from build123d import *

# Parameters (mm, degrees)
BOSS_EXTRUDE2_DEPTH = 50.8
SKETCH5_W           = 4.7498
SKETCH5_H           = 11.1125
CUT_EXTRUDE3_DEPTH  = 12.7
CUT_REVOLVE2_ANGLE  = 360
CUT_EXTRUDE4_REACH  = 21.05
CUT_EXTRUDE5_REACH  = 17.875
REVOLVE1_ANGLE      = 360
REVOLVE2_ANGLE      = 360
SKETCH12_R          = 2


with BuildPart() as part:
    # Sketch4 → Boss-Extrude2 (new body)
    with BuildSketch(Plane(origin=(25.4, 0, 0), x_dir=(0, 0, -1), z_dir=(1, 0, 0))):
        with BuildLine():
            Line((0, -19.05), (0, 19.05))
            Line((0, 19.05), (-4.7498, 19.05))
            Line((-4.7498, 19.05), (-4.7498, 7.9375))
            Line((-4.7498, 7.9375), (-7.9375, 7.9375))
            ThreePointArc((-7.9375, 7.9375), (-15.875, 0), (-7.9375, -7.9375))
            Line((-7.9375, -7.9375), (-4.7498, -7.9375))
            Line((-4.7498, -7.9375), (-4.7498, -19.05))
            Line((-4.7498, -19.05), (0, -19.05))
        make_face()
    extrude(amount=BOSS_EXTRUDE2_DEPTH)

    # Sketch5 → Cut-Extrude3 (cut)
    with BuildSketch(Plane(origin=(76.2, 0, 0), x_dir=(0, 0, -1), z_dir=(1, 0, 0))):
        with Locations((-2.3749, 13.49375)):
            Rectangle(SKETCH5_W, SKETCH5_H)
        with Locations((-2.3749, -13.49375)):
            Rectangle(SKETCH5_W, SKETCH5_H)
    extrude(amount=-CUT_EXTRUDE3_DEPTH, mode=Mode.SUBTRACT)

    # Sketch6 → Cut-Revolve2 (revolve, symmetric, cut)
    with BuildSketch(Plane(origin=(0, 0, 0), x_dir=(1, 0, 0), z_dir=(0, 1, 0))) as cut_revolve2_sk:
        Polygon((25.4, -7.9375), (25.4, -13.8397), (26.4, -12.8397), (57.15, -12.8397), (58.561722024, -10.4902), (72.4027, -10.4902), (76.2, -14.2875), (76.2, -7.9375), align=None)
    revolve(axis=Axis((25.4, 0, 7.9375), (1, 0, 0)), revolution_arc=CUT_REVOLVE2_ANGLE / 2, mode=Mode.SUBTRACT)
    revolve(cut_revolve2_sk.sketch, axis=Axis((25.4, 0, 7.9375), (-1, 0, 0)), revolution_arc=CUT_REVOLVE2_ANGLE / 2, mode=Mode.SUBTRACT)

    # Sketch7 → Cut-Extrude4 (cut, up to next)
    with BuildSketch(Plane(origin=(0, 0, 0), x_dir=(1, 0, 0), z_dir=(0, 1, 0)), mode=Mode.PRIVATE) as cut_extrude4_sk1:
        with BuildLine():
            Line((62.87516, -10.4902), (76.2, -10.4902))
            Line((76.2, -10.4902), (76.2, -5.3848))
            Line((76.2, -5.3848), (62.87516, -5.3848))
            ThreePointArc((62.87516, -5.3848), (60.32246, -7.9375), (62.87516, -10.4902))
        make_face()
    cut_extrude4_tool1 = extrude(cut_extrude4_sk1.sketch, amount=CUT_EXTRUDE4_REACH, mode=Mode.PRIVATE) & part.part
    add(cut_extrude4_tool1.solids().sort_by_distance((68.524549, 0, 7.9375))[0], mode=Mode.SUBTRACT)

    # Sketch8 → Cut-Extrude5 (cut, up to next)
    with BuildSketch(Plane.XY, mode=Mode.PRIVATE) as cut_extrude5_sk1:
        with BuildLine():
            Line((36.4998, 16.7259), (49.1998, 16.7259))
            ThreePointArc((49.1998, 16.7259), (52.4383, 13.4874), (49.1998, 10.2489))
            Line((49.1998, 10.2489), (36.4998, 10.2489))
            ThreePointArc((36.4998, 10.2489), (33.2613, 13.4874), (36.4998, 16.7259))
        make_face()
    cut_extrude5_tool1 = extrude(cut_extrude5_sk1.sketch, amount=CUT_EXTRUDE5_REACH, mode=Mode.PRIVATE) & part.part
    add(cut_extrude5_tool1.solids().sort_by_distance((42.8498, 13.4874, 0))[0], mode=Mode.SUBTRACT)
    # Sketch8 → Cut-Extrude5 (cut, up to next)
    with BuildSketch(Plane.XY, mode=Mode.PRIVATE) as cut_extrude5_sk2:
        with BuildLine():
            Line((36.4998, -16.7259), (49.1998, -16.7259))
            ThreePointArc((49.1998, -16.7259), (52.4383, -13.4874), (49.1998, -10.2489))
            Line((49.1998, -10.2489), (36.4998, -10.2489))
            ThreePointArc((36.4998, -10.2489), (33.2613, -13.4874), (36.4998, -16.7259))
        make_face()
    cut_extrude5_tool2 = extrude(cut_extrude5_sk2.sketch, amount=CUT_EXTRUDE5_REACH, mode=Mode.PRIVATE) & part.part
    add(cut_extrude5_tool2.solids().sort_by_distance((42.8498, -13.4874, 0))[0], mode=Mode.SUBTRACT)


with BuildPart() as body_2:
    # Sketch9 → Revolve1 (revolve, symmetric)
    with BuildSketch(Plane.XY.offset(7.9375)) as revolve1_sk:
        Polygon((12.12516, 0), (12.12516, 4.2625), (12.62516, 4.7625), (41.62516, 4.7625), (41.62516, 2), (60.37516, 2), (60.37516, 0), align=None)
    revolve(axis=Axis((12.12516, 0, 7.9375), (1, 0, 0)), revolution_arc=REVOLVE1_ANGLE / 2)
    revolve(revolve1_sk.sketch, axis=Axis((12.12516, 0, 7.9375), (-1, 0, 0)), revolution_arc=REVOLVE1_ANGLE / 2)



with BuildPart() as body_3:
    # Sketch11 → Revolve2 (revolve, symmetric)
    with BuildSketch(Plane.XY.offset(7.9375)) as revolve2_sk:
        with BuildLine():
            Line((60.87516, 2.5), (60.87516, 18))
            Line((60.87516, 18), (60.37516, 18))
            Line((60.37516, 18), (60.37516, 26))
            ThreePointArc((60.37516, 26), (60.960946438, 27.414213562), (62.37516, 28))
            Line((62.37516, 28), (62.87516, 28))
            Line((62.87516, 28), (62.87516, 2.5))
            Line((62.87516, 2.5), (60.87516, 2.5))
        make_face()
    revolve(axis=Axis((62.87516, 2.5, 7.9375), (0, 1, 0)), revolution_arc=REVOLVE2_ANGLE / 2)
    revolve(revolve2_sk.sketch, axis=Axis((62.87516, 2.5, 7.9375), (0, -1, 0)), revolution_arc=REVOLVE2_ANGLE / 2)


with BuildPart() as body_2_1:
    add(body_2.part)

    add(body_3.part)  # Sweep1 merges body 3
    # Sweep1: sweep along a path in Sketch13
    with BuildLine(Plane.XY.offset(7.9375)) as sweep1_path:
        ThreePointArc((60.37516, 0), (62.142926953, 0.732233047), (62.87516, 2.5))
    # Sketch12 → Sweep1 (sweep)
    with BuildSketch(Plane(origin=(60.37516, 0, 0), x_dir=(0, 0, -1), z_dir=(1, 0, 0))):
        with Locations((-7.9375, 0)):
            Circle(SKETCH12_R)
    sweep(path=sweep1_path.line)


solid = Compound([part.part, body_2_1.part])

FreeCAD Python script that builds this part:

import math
import FreeCAD as App
import Part
import Sketcher

V = App.Vector
Q = App.Units.Quantity


def add_polygon(sketch, points):
    """Adds a closed chain of lines whose ends are joined by coincident constraints."""
    first, n = sketch.GeometryCount, len(points)
    for a, b in zip(points, points[1:] + points[:1]):
        sketch.addGeometry(Part.LineSegment(App.Vector(*a, 0), App.Vector(*b, 0)), False)
    for i in range(n):
        sketch.addConstraint(Sketcher.Constraint("Coincident", first + i, 2, first + (i + 1) % n, 1))

doc = App.newDocument("Part")
body = doc.addObject("PartDesign::Body", "Body")

sketch1 = doc.addObject("Sketcher::SketchObject", "Sketch")
body.addObject(sketch1)
sketch1.AttachmentSupport = (doc.YZ_Plane, [""])
sketch1.MapMode = "FlatFace"
sketch1.AttachmentOffset = App.Placement(V(0, 0, 1 * 25.4), App.Rotation())
sketch1.addGeometry([
    Part.LineSegment(V(-19.1, 0, 0), V(19.1, 0, 0)),
    Part.LineSegment(V(19.1, 0, 0), V(19.1, 4.7, 0)),
    Part.LineSegment(V(19.1, 4.7, 0), V(7.9, 4.7, 0)),
    Part.LineSegment(V(7.9, 4.7, 0), V(7.9, 7.9, 0)),
    Part.ArcOfCircle(Part.Circle(V(0, 7.9, 0), V(0, 0, 1), 7.9), math.radians(0), math.radians(180)),
    Part.LineSegment(V(-7.9, 7.9, 0), V(-7.9, 4.7, 0)),
    Part.LineSegment(V(-7.9, 4.7, 0), V(-19.1, 4.7, 0)),
    Part.LineSegment(V(-19.1, 4.7, 0), V(-19.1, 0, 0)),
], False)
sketch1.addConstraint([
    Sketcher.Constraint("Coincident", 0, 2, 1, 1),
    Sketcher.Constraint("Coincident", 1, 2, 2, 1),
    Sketcher.Constraint("Coincident", 2, 2, 3, 1),
    Sketcher.Constraint("Tangent", 3, 2, 4, 1),
    Sketcher.Constraint("Tangent", 4, 2, 5, 1),
    Sketcher.Constraint("Coincident", 5, 2, 6, 1),
    Sketcher.Constraint("Coincident", 6, 2, 7, 1),
    Sketcher.Constraint("Coincident", 7, 2, 0, 1),
    Sketcher.Constraint("Horizontal", 0),
    Sketcher.Constraint("Vertical", 1),
    Sketcher.Constraint("Horizontal", 2),
    Sketcher.Constraint("Vertical", 3),
    Sketcher.Constraint("Vertical", 5),
    Sketcher.Constraint("Horizontal", 6),
    Sketcher.Constraint("Vertical", 7),
    Sketcher.Constraint("Symmetric", 0, 2, 7, 2, -1, 1),
    Sketcher.Constraint("Symmetric", 2, 2, 5, 2, -2),
    Sketcher.Constraint("DistanceX", 0, 1, 0, 2, Q("1.5 in")),
    Sketcher.Constraint("Radius", 4, Q("0.3125 in")),
    Sketcher.Constraint("DistanceY", 1, 1, 1, 2, Q("0.187 in")),
    Sketcher.Constraint("DistanceY", 3, 1, 3, 2, Q("0.1255 in")),
])
pad1 = doc.addObject("PartDesign::Pad", "Pad")
body.addObject(pad1)
pad1.Profile = sketch1
pad1.Length = Q("2 in")

sketch2 = doc.addObject("Sketcher::SketchObject", "Sketch001")
body.addObject(sketch2)
sketch2.AttachmentSupport = (doc.YZ_Plane, [""])
sketch2.MapMode = "FlatFace"
sketch2.AttachmentOffset = App.Placement(V(0, 0, 3 * 25.4), App.Rotation())
add_polygon(sketch2, [(19.1, 4.7), (7.9, 4.7), (7.9, 0), (19.1, 0)])
add_polygon(sketch2, [(-7.9, 4.7), (-19.1, 4.7), (-19.1, 0), (-7.9, 0)])
sketch2.addConstraint([
    Sketcher.Constraint("Horizontal", 0),
    Sketcher.Constraint("Vertical", 1),
    Sketcher.Constraint("Horizontal", 2),
    Sketcher.Constraint("Vertical", 3),
    Sketcher.Constraint("Horizontal", 4),
    Sketcher.Constraint("Vertical", 5),
    Sketcher.Constraint("Horizontal", 6),
    Sketcher.Constraint("Vertical", 7),
    Sketcher.Constraint("Symmetric", 2, 2, 5, 2, -1, 1),
    Sketcher.Constraint("Symmetric", 1, 2, 6, 2, -2),
    Sketcher.Constraint("Horizontal", 3, 2, 4, 2),
    Sketcher.Constraint("DistanceX", 4, 2, 3, 2, Q("1.5 in")),
    Sketcher.Constraint("DistanceX", 0, 2, 0, 1, Q("0.4375 in")),
    Sketcher.Constraint("DistanceY", 1, 2, 1, 1, Q("0.187 in")),
])
pocket1 = doc.addObject("PartDesign::Pocket", "Pocket")
body.addObject(pocket1)
pocket1.Profile = sketch2
pocket1.Length = Q("0.5 in")

sketch3 = doc.addObject("Sketcher::SketchObject", "Sketch002")
body.addObject(sketch3)
sketch3.AttachmentSupport = (doc.XZ_Plane, [""])
sketch3.MapMode = "FlatFace"
add_polygon(sketch3, [(25.4, 7.9), (25.4, 13.8), (26.4, 12.8), (57.1, 12.8), (58.6, 10.5), (72.4, 10.5), (76.2, 14.3), (76.2, 7.9)])
sketch3.addGeometry(Part.LineSegment(V(25.4, 7.9, 0), V(76.2, 7.9, 0)), True)
sketch3.addConstraint([
    Sketcher.Constraint("Vertical", 0),
    Sketcher.Constraint("Horizontal", 2),
    Sketcher.Constraint("Horizontal", 4),
    Sketcher.Constraint("Vertical", 6),
    Sketcher.Constraint("Horizontal", 7),
    Sketcher.Constraint("Horizontal", 8),
    Sketcher.Constraint("Coincident", 8, 1, 7, 2),
    Sketcher.Constraint("Perpendicular", 1, 5),
    Sketcher.Constraint("Vertical", 5, 2, 8, 2),
    Sketcher.Constraint("DistanceX", 7, 2, 7, 1, Q("2 in")),
    Sketcher.Constraint("DistanceX", -1, 1, 0, 2, Q("1 in")),
    Sketcher.Constraint("Angle", 1, Q("-45 deg")),
    Sketcher.Constraint("Angle", 3, Q("-59 deg")),
    Sketcher.Constraint("DistanceY", 6, 2, 6, 1, Q("0.25 in")),
    Sketcher.Constraint("DistanceX", -1, 1, 2, 2, Q("2.25 in")),
    Sketcher.Constraint("DistanceY", -1, 1, 3, 2, Q("0.413 in")),
    Sketcher.Constraint("DistanceY", -1, 1, 5, 2, Q("0.5625 in")),
    Sketcher.Constraint("DistanceY", 2, 2, 5, 2, Q("0.057 in")),
    Sketcher.Constraint("DistanceX", 2, 1, 2, 2, Q("30.75 mm")),
])
groove = doc.addObject("PartDesign::Groove", "Groove")
body.addObject(groove)
groove.Profile = sketch3
groove.ReferenceAxis = (sketch3, ["Axis0"])
groove.Angle = 180

sketch4 = doc.addObject("Sketcher::SketchObject", "Sketch003")
body.addObject(sketch4)
sketch4.AttachmentSupport = (doc.XZ_Plane, [""])
sketch4.MapMode = "FlatFace"
add_polygon(sketch4, [(25.4, 7.9), (25.4, 13.8), (26.4, 12.8), (57.1, 12.8), (58.6, 10.5), (72.4, 10.5), (76.2, 14.3), (76.2, 7.9)])
sketch4.addGeometry(Part.LineSegment(V(76.2, 7.9, 0), V(25.4, 7.9, 0)), True)
sketch4.addConstraint([
    Sketcher.Constraint("Vertical", 0),
    Sketcher.Constraint("Horizontal", 2),
    Sketcher.Constraint("Horizontal", 4),
    Sketcher.Constraint("Vertical", 6),
    Sketcher.Constraint("Horizontal", 7),
    Sketcher.Constraint("Horizontal", 8),
    Sketcher.Constraint("Coincident", 8, 1, 6, 2),
    Sketcher.Constraint("Perpendicular", 1, 5),
    Sketcher.Constraint("Vertical", 0, 2, 8, 2),
    Sketcher.Constraint("DistanceX", 7, 2, 7, 1, Q("2 in")),
    Sketcher.Constraint("DistanceX", -1, 1, 0, 2, Q("1 in")),
    Sketcher.Constraint("Angle", 1, Q("-45 deg")),
    Sketcher.Constraint("Angle", 3, Q("-59 deg")),
    Sketcher.Constraint("DistanceY", 6, 2, 6, 1, Q("0.25 in")),
    Sketcher.Constraint("DistanceX", -1, 1, 2, 2, Q("2.25 in")),
    Sketcher.Constraint("DistanceY", -1, 1, 3, 2, Q("0.413 in")),
    Sketcher.Constraint("DistanceY", -1, 1, 5, 2, Q("0.5625 in")),
    Sketcher.Constraint("DistanceY", 2, 2, 5, 2, Q("0.057 in")),
    Sketcher.Constraint("DistanceX", 2, 1, 2, 2, Q("30.75 mm")),
])
groove2 = doc.addObject("PartDesign::Groove", "Groove001")
body.addObject(groove2)
groove2.Profile = sketch4
groove2.ReferenceAxis = (sketch4, ["Axis0"])
groove2.Angle = 180

sketch5 = doc.addObject("Sketcher::SketchObject", "Sketch004")
body.addObject(sketch5)
sketch5.AttachmentSupport = (doc.XZ_Plane, [""])
sketch5.MapMode = "FlatFace"
sketch5.addGeometry([
    Part.LineSegment(V(62.9, 10.5, 0), V(76.2, 10.5, 0)),
    Part.LineSegment(V(76.2, 10.5, 0), V(76.2, 5.4, 0)),
    Part.LineSegment(V(76.2, 5.4, 0), V(62.9, 5.4, 0)),
    Part.ArcOfCircle(Part.Circle(V(62.9, 7.9, 0), V(0, 0, 1), 2.6), math.radians(90), math.radians(270)),
], False)
sketch5.addConstraint([
    Sketcher.Constraint("Coincident", 0, 2, 1, 1),
    Sketcher.Constraint("Coincident", 1, 2, 2, 1),
    Sketcher.Constraint("Tangent", 2, 2, 3, 2),
    Sketcher.Constraint("Tangent", 3, 1, 0, 1),
    Sketcher.Constraint("Horizontal", 0),
    Sketcher.Constraint("Vertical", 1),
    Sketcher.Constraint("Horizontal", 2),
    Sketcher.Constraint("DistanceX", -1, 1, 0, 2, Q("3 in")),
    Sketcher.Constraint("Radius", 3, Q("0.1005 in")),
    Sketcher.Constraint("DistanceX", 0, 1, 0, 2, Q("0.5246 in")),
    Sketcher.Constraint("DistanceY", -1, 1, 3, 3, Q("0.3125 in")),
])
pocket2 = doc.addObject("PartDesign::Pocket", "Pocket001")
body.addObject(pocket2)
pocket2.Profile = sketch5
pocket2.Length = Q("0.3125 in")

sketch6 = doc.addObject("Sketcher::SketchObject", "Sketch005")
body.addObject(sketch6)
sketch6.AttachmentSupport = (doc.XY_Plane, [""])
sketch6.MapMode = "FlatFace"
sketch6.addGeometry([
    Part.LineSegment(V(49.2, 16.7, 0), V(36.5, 16.7, 0)),
    Part.ArcOfCircle(Part.Circle(V(36.5, 13.5, 0), V(0, 0, 1), 3.2), math.radians(90), math.radians(270)),
    Part.LineSegment(V(36.5, 10.2, 0), V(49.2, 10.2, 0)),
    Part.ArcOfCircle(Part.Circle(V(49.2, 13.5, 0), V(0, 0, 1), 3.2), math.radians(-90), math.radians(90)),
], False)
sketch6.addConstraint([
    Sketcher.Constraint("Tangent", 0, 2, 1, 1),
    Sketcher.Constraint("Tangent", 1, 2, 2, 1),
    Sketcher.Constraint("Tangent", 2, 2, 3, 1),
    Sketcher.Constraint("Tangent", 3, 2, 0, 1),
    Sketcher.Constraint("Horizontal", 0),
    Sketcher.Constraint("Horizontal", 2),
    Sketcher.Constraint("DistanceX", 0, 2, 0, 1, Q("0.5 in")),
    Sketcher.Constraint("Radius", 1, Q("0.1275 in")),
    Sketcher.Constraint("DistanceX", -1, 1, 1, 3, Q("1.437 in")),
    Sketcher.Constraint("DistanceY", -1, 1, 1, 3, Q("0.531 in")),
])
pocket3 = doc.addObject("PartDesign::Pocket", "Pocket002")
body.addObject(pocket3)
pocket3.Profile = sketch6
pocket3.Type = "UpToFirst"
pocket3.Reversed = True

sketch7 = doc.addObject("Sketcher::SketchObject", "Sketch006")
body.addObject(sketch7)
sketch7.AttachmentSupport = (doc.XY_Plane, [""])
sketch7.MapMode = "FlatFace"
sketch7.addGeometry([
    Part.LineSegment(V(36.5, -16.7, 0), V(49.2, -16.7, 0)),
    Part.ArcOfCircle(Part.Circle(V(49.2, -13.5, 0), V(0, 0, 1), 3.2), math.radians(-90), math.radians(90)),
    Part.LineSegment(V(49.2, -10.2, 0), V(36.5, -10.2, 0)),
    Part.ArcOfCircle(Part.Circle(V(36.5, -13.5, 0), V(0, 0, 1), 3.2), math.radians(90), math.radians(270)),
], False)
sketch7.addConstraint([
    Sketcher.Constraint("Tangent", 0, 2, 1, 1),
    Sketcher.Constraint("Tangent", 1, 2, 2, 1),
    Sketcher.Constraint("Tangent", 2, 2, 3, 1),
    Sketcher.Constraint("Tangent", 3, 2, 0, 1),
    Sketcher.Constraint("Horizontal", 0),
    Sketcher.Constraint("Horizontal", 2),
    Sketcher.Constraint("DistanceX", 0, 1, 0, 2, Q("0.5 in")),
    Sketcher.Constraint("Radius", 1, Q("0.1275 in")),
    Sketcher.Constraint("DistanceX", -1, 1, 1, 3, Q("1.937 in")),
    Sketcher.Constraint("DistanceY", 1, 3, -1, 1, Q("0.531 in")),
])
pocket4 = doc.addObject("PartDesign::Pocket", "Pocket003")
body.addObject(pocket4)
pocket4.Profile = sketch7
pocket4.Type = "UpToFirst"
pocket4.Reversed = True
body2 = doc.addObject("PartDesign::Body", "Body001")

sketch8 = doc.addObject("Sketcher::SketchObject", "Sketch007")
body2.addObject(sketch8)
sketch8.AttachmentSupport = (doc.getObject("XY_Plane001"), [""])
sketch8.MapMode = "FlatFace"
sketch8.AttachmentOffset = App.Placement(V(0, 0, 0.3125 * 25.4), App.Rotation())
add_polygon(sketch8, [(12.1, 4.3), (12.1, 0), (60.4, 0), (60.4, 2), (41.6, 2), (41.6, 4.8), (12.6, 4.8)])
sketch8.addConstraint([
    Sketcher.Constraint("Vertical", 0),
    Sketcher.Constraint("Horizontal", 1),
    Sketcher.Constraint("Vertical", 2),
    Sketcher.Constraint("Horizontal", 3),
    Sketcher.Constraint("Vertical", 4),
    Sketcher.Constraint("Horizontal", 5),
    Sketcher.Constraint("PointOnObject", 0, 2, -1),
    Sketcher.Constraint("Angle", 6, Q("-135 deg")),
    Sketcher.Constraint("DistanceY", -1, 1, 4, 2, Q("0.1875 in")),
    Sketcher.Constraint("DistanceX", 1, 1, 1, 2, Q("48.25 mm")),
    Sketcher.Constraint("DistanceX", 3, 2, 3, 1, Q("18.75 mm")),
    Sketcher.Constraint("DistanceX", 5, 2, 5, 1, Q("29 mm")),
    Sketcher.Constraint("DistanceY", 2, 1, 2, 2, Q("2 mm")),
    Sketcher.Constraint("DistanceX", -1, 1, 0, 2, Q("12.12516 mm")),
])
revolution = doc.addObject("PartDesign::Revolution", "Revolution")
body2.addObject(revolution)
revolution.Profile = sketch8
revolution.ReferenceAxis = (sketch8, ["H_Axis"])
revolution.Angle = 180

sketch9 = doc.addObject("Sketcher::SketchObject", "Sketch008")
body2.addObject(sketch9)
sketch9.AttachmentSupport = (doc.getObject("XY_Plane001"), [""])
sketch9.MapMode = "FlatFace"
sketch9.AttachmentOffset = App.Placement(V(0, 0, 0.3125 * 25.4), App.Rotation())
add_polygon(sketch9, [(12.1, 4.3), (12.1, 0), (60.4, 0), (60.4, 2), (41.6, 2), (41.6, 4.8), (12.6, 4.8)])
sketch9.addConstraint([
    Sketcher.Constraint("Vertical", 0),
    Sketcher.Constraint("Horizontal", 1),
    Sketcher.Constraint("Vertical", 2),
    Sketcher.Constraint("Horizontal", 3),
    Sketcher.Constraint("Vertical", 4),
    Sketcher.Constraint("Horizontal", 5),
    Sketcher.Constraint("PointOnObject", 0, 2, -1),
    Sketcher.Constraint("Angle", 6, Q("-135 deg")),
    Sketcher.Constraint("DistanceY", -1, 1, 4, 2, Q("0.1875 in")),
    Sketcher.Constraint("DistanceX", 1, 1, 1, 2, Q("48.25 mm")),
    Sketcher.Constraint("DistanceX", 3, 2, 3, 1, Q("18.75 mm")),
    Sketcher.Constraint("DistanceX", 5, 2, 5, 1, Q("29 mm")),
    Sketcher.Constraint("DistanceY", 2, 1, 2, 2, Q("2 mm")),
    Sketcher.Constraint("DistanceX", -1, 1, 0, 2, Q("12.12516 mm")),
])
revolution2 = doc.addObject("PartDesign::Revolution", "Revolution001")
body2.addObject(revolution2)
revolution2.Profile = sketch9
revolution2.ReferenceAxis = (sketch9, ["H_Axis"])
revolution2.Angle = 180
revolution2.Reversed = True
body3 = doc.addObject("PartDesign::Body", "Body002")

sketch10 = doc.addObject("Sketcher::SketchObject", "Sketch009")
body3.addObject(sketch10)
sketch10.AttachmentSupport = (doc.getObject("XY_Plane002"), [""])
sketch10.MapMode = "FlatFace"
sketch10.AttachmentOffset = App.Placement(V(0, 0, 0.3125 * 25.4), App.Rotation())
sketch10.addGeometry([
    Part.LineSegment(V(60.9, 18, 0), V(60.9, 2.5, 0)),
    Part.LineSegment(V(60.9, 2.5, 0), V(62.9, 2.5, 0)),
    Part.LineSegment(V(62.9, 2.5, 0), V(62.9, 28, 0)),
    Part.LineSegment(V(62.9, 28, 0), V(62.4, 28, 0)),
    Part.ArcOfCircle(Part.Circle(V(62.4, 26, 0), V(0, 0, 1), 2), math.radians(90), math.radians(180)),
    Part.LineSegment(V(60.4, 26, 0), V(60.4, 18, 0)),
    Part.LineSegment(V(60.4, 18, 0), V(60.9, 18, 0)),
], False)
sketch10.addGeometry(Part.LineSegment(V(62.9, 2.5, 0), V(62.9, 28, 0)), True)
sketch10.addConstraint([
    Sketcher.Constraint("Coincident", 0, 2, 1, 1),
    Sketcher.Constraint("Coincident", 1, 2, 2, 1),
    Sketcher.Constraint("Coincident", 2, 2, 3, 1),
    Sketcher.Constraint("Tangent", 3, 2, 4, 1),
    Sketcher.Constraint("Tangent", 4, 2, 5, 1),
    Sketcher.Constraint("Coincident", 5, 2, 6, 1),
    Sketcher.Constraint("Coincident", 6, 2, 0, 1),
    Sketcher.Constraint("Vertical", 0),
    Sketcher.Constraint("Horizontal", 1),
    Sketcher.Constraint("Vertical", 2),
    Sketcher.Constraint("Horizontal", 3),
    Sketcher.Constraint("Vertical", 5),
    Sketcher.Constraint("Horizontal", 6),
    Sketcher.Constraint("Vertical", 7),
    Sketcher.Constraint("Coincident", 7, 1, 1, 2),
    Sketcher.Constraint("Horizontal", 3, 2, 7, 2),
    Sketcher.Constraint("Equal", 3, 6),
    Sketcher.Constraint("Radius", 4, Q("2 mm")),
    Sketcher.Constraint("DistanceX", 3, 2, 3, 1, Q("0.5 mm")),
    Sketcher.Constraint("DistanceY", 0, 2, 0, 1, Q("15.5 mm")),
    Sketcher.Constraint("DistanceY", 2, 1, 2, 2, Q("25.5 mm")),
    Sketcher.Constraint("DistanceX", -1, 1, 1, 2, Q("2.4754 in")),
    Sketcher.Constraint("DistanceY", -1, 1, 4, 3, Q("26 mm")),
])
revolution3 = doc.addObject("PartDesign::Revolution", "Revolution002")
body3.addObject(revolution3)
revolution3.Profile = sketch10
revolution3.ReferenceAxis = (sketch10, ["Axis0"])
revolution3.Angle = 180

sketch11 = doc.addObject("Sketcher::SketchObject", "Sketch010")
body3.addObject(sketch11)
sketch11.AttachmentSupport = (doc.getObject("XY_Plane002"), [""])
sketch11.MapMode = "FlatFace"
sketch11.AttachmentOffset = App.Placement(V(0, 0, 0.3125 * 25.4), App.Rotation())
sketch11.addGeometry([
    Part.LineSegment(V(60.9, 18, 0), V(60.9, 2.5, 0)),
    Part.LineSegment(V(60.9, 2.5, 0), V(62.9, 2.5, 0)),
    Part.LineSegment(V(62.9, 2.5, 0), V(62.9, 28, 0)),
    Part.LineSegment(V(62.9, 28, 0), V(62.4, 28, 0)),
    Part.ArcOfCircle(Part.Circle(V(62.4, 26, 0), V(0, 0, 1), 2), math.radians(90), math.radians(180)),
    Part.LineSegment(V(60.4, 26, 0), V(60.4, 18, 0)),
    Part.LineSegment(V(60.4, 18, 0), V(60.9, 18, 0)),
], False)
sketch11.addGeometry(Part.LineSegment(V(62.9, 28, 0), V(62.9, 2.5, 0)), True)
sketch11.addConstraint([
    Sketcher.Constraint("Coincident", 0, 2, 1, 1),
    Sketcher.Constraint("Coincident", 1, 2, 2, 1),
    Sketcher.Constraint("Coincident", 2, 2, 3, 1),
    Sketcher.Constraint("Tangent", 3, 2, 4, 1),
    Sketcher.Constraint("Tangent", 4, 2, 5, 1),
    Sketcher.Constraint("Coincident", 5, 2, 6, 1),
    Sketcher.Constraint("Coincident", 6, 2, 0, 1),
    Sketcher.Constraint("Vertical", 0),
    Sketcher.Constraint("Horizontal", 1),
    Sketcher.Constraint("Vertical", 2),
    Sketcher.Constraint("Horizontal", 3),
    Sketcher.Constraint("Vertical", 5),
    Sketcher.Constraint("Horizontal", 6),
    Sketcher.Constraint("Vertical", 7),
    Sketcher.Constraint("Coincident", 7, 1, 2, 2),
    Sketcher.Constraint("Horizontal", 0, 2, 7, 2),
    Sketcher.Constraint("Equal", 3, 6),
    Sketcher.Constraint("Radius", 4, Q("2 mm")),
    Sketcher.Constraint("DistanceX", 3, 2, 3, 1, Q("0.5 mm")),
    Sketcher.Constraint("DistanceY", 0, 2, 0, 1, Q("15.5 mm")),
    Sketcher.Constraint("DistanceY", 2, 1, 2, 2, Q("25.5 mm")),
    Sketcher.Constraint("DistanceX", -1, 1, 1, 2, Q("2.4754 in")),
    Sketcher.Constraint("DistanceY", -1, 1, 4, 3, Q("26 mm")),
])
revolution4 = doc.addObject("PartDesign::Revolution", "Revolution003")
body3.addObject(revolution4)
revolution4.Profile = sketch11
revolution4.ReferenceAxis = (sketch11, ["Axis0"])
revolution4.Angle = 180
body2.AllowCompound = True
doc.recompute()

boolean = doc.addObject("PartDesign::Boolean", "Boolean")
body2.addObject(boolean)
boolean.Type = "Fuse"
boolean.addObjects([body3])

sketch12 = doc.addObject("Sketcher::SketchObject", "Sketch011")
body2.addObject(sketch12)
sketch12.AttachmentSupport = (doc.getObject("YZ_Plane001"), [""])
sketch12.MapMode = "FlatFace"
sketch12.AttachmentOffset = App.Placement(V(0, 0, 60.37516), App.Rotation())
sketch12.addGeometry(Part.Circle(V(0, 7.9, 0), V(0, 0, 1), 2), False)
sketch12.addConstraint([
    Sketcher.Constraint("PointOnObject", 0, 3, -2),
    Sketcher.Constraint("Diameter", 0, Q("4 mm")),
    Sketcher.Constraint("DistanceY", -1, 1, 0, 3, Q("0.3125 in")),
])

sketch13 = doc.addObject("Sketcher::SketchObject", "Sketch012")
body2.addObject(sketch13)
sketch13.AttachmentSupport = (doc.getObject("XY_Plane001"), [""])
sketch13.MapMode = "FlatFace"
sketch13.AttachmentOffset = App.Placement(V(0, 0, 0.3125 * 25.4), App.Rotation())
sketch13.addGeometry(Part.ArcOfCircle(Part.Circle(V(60.4, 2.5, 0), V(0, 0, 1), 2.5), math.radians(-90), math.radians(0)), False)
sketch13.addConstraint([
    Sketcher.Constraint("PointOnObject", 0, 1, -1),
    Sketcher.Constraint("Radius", 0, Q("2.5 mm")),
    Sketcher.Constraint("DistanceX", -1, 1, 0, 2, Q("2.4754 in")),
    Sketcher.Constraint("DistanceY", -1, 1, 0, 2, Q("2.5 mm")),
    Sketcher.Constraint("DistanceX", 0, 1, 0, 2, Q("2.5 mm")),
])
doc.recompute()

additivepipe = doc.addObject("PartDesign::AdditivePipe", "AdditivePipe")
body2.addObject(additivepipe)
additivepipe.Profile = sketch12
additivepipe.Spine = (sketch13, ["Edge1"])

doc.recompute()
